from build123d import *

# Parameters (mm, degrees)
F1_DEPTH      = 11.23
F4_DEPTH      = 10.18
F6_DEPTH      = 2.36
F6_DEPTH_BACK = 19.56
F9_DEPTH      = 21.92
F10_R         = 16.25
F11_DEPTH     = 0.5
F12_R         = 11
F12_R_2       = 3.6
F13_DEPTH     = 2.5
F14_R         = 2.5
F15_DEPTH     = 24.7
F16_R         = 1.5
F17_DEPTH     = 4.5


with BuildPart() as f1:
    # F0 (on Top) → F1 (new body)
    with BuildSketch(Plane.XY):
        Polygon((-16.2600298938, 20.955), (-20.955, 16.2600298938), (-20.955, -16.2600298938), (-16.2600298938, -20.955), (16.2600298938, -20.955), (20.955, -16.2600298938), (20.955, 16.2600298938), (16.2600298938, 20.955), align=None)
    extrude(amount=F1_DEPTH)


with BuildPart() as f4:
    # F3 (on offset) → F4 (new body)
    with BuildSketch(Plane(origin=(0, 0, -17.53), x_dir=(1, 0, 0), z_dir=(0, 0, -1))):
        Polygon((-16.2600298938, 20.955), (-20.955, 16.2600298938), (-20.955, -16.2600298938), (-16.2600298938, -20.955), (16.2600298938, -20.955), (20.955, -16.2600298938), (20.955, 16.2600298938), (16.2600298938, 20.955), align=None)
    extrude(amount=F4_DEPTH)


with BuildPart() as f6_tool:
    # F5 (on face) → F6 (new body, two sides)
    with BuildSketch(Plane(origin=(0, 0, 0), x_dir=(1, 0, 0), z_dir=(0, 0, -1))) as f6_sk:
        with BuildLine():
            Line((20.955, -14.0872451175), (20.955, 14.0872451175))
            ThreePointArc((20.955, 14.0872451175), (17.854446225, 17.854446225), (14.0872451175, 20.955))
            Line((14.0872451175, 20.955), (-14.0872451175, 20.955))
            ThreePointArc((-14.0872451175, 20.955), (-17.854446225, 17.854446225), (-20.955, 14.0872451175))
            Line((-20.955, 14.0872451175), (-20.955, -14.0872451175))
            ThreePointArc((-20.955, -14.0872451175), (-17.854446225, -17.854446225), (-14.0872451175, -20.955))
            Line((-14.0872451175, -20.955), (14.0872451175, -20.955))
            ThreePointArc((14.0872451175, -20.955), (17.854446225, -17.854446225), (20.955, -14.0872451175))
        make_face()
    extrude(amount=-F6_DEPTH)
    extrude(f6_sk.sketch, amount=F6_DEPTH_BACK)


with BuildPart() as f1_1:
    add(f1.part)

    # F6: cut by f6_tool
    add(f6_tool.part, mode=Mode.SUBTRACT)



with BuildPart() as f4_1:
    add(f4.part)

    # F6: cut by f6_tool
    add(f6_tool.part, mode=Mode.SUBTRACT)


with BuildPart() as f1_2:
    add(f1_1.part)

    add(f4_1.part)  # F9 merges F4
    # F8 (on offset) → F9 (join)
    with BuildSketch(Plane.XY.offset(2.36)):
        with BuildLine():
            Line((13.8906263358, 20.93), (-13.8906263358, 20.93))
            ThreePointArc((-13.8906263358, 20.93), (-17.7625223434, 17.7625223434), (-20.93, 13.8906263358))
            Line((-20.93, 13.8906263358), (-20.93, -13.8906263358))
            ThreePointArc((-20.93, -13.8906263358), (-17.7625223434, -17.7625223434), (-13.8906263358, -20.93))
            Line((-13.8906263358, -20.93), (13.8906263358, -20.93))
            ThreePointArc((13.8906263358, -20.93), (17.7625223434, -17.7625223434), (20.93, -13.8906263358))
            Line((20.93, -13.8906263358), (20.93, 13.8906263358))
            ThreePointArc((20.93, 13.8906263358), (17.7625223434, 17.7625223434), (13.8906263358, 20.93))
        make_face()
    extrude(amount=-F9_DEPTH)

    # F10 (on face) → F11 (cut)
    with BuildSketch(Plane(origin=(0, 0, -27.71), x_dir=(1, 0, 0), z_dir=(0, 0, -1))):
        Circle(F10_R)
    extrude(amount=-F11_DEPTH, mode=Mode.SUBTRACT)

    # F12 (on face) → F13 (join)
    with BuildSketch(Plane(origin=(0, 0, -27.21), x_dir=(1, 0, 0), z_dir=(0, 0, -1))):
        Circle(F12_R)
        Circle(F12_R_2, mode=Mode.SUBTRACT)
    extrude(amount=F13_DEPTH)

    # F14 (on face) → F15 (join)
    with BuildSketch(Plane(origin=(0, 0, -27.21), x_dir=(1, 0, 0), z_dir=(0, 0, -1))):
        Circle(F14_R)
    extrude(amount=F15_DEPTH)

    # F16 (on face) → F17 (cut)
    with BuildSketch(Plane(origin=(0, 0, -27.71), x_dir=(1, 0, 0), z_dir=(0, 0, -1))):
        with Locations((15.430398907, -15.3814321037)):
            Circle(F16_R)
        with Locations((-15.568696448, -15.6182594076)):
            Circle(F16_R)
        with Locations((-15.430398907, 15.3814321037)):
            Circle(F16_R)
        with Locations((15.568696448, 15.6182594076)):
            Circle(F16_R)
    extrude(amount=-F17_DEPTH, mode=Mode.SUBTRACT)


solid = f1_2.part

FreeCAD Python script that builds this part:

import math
import FreeCAD as App
import Part
import Sketcher

V = App.Vector
Q = App.Units.Quantity

doc = App.newDocument("Part")
body = doc.addObject("PartDesign::Body", "Body")

# Sketch on XY plane
sketch1 = body.newObject("Sketcher::SketchObject", "Sketch")
sketch1.AttachmentSupport = (doc.getObject("XY_Plane"), [""])
sketch1.MapMode = "FlatFace"
sketch1.addGeometry([
    Part.LineSegment(V(-16, 21, 0), V(-21, 16, 0)),  # 0
    Part.LineSegment(V(-21, 16, 0), V(-21, -16, 0)),  # 1
    Part.LineSegment(V(-21, -16, 0), V(-16, -21, 0)),  # 2
    Part.LineSegment(V(-16, -21, 0), V(16, -21, 0)),  # 3
    Part.LineSegment(V(16, -21, 0), V(21, -16, 0)),  # 4
    Part.LineSegment(V(21, -16, 0), V(21, 16, 0)),  # 5
    Part.LineSegment(V(21, 16, 0), V(16, 21, 0)),  # 6
    Part.LineSegment(V(16, 21, 0), V(-16, 21, 0)),  # 7
], False)
sketch1.addConstraint([
    Sketcher.Constraint("Coincident", 0, 2, 1, 1),
    Sketcher.Constraint("Coincident", 1, 2, 2, 1),
    Sketcher.Constraint("Coincident", 2, 2, 3, 1),
    Sketcher.Constraint("Coincident", 3, 2, 4, 1),
    Sketcher.Constraint("Coincident", 4, 2, 5, 1),
    Sketcher.Constraint("Coincident", 5, 2, 6, 1),
    Sketcher.Constraint("Coincident", 6, 2, 7, 1),
    Sketcher.Constraint("Coincident", 7, 2, 0, 1),
    Sketcher.Constraint("Vertical", 1),
    Sketcher.Constraint("Horizontal", 3),
    Sketcher.Constraint("Vertical", 5),
    Sketcher.Constraint("Horizontal", 7),
    Sketcher.Constraint("Symmetric", 0, 2, 4, 2, -1, 1),
    Sketcher.Constraint("Symmetric", 2, 2, 6, 2, -1, 1),
    Sketcher.Constraint("Perpendicular", 0, 2),
    Sketcher.Constraint("Perpendicular", 2, 4),
    Sketcher.Constraint("Perpendicular", 4, 6),
    Sketcher.Constraint("Horizontal", 1, 2, 4, 2),
    Sketcher.Constraint("Vertical", 3, 2, 6, 2),
    Sketcher.Constraint("Equal", 7, 1),
    Sketcher.Constraint("DistanceX", 1, 2, 4, 2, Q("41.91 mm")),
    Sketcher.Constraint("DistanceX", 3, 1, 3, 2, Q("32.52006 mm")),
])
pad1 = body.newObject("PartDesign::Pad", "Pad")
pad1.Profile = sketch1
pad1.Length = 11.23
body2 = doc.addObject("PartDesign::Body", "Body001")

# Sketch on XY plane
sketch2 = body2.newObject("Sketcher::SketchObject", "Sketch001")
sketch2.AttachmentSupport = (doc.getObject("XY_Plane001"), [""])
sketch2.MapMode = "FlatFace"
sketch2.AttachmentOffset = App.Placement(V(0, 0, -17.53), App.Rotation())
sketch2.addGeometry([
    Part.LineSegment(V(-16, -21, 0), V(-21, -16, 0)),  # 0
    Part.LineSegment(V(-21, -16, 0), V(-21, 16, 0)),  # 1
    Part.LineSegment(V(-21, 16, 0), V(-16, 21, 0)),  # 2
    Part.LineSegment(V(-16, 21, 0), V(16, 21, 0)),  # 3
    Part.LineSegment(V(16, 21, 0), V(21, 16, 0)),  # 4
    Part.LineSegment(V(21, 16, 0), V(21, -16, 0)),  # 5
    Part.LineSegment(V(21, -16, 0), V(16, -21, 0)),  # 6
    Part.LineSegment(V(16, -21, 0), V(-16, -21, 0)),  # 7
], False)
sketch2.addConstraint([
    Sketcher.Constraint("Coincident", 0, 2, 1, 1),
    Sketcher.Constraint("Coincident", 1, 2, 2, 1),
    Sketcher.Constraint("Coincident", 2, 2, 3, 1),
    Sketcher.Constraint("Coincident", 3, 2, 4, 1),
    Sketcher.Constraint("Coincident", 4, 2, 5, 1),
    Sketcher.Constraint("Coincident", 5, 2, 6, 1),
    Sketcher.Constraint("Coincident", 6, 2, 7, 1),
    Sketcher.Constraint("Coincident", 7, 2, 0, 1),
    Sketcher.Constraint("Vertical", 1),
    Sketcher.Constraint("Horizontal", 3),
    Sketcher.Constraint("Vertical", 5),
    Sketcher.Constraint("Horizontal", 7),
    Sketcher.Constraint("Symmetric", 0, 2, 4, 2, -1, 1),
    Sketcher.Constraint("Symmetric", 2, 2, 6, 2, -1, 1),
    Sketcher.Constraint("Perpendicular", 0, 2),
    Sketcher.Constraint("Perpendicular", 2, 4),
    Sketcher.Constraint("Perpendicular", 4, 6),
    Sketcher.Constraint("Horizontal", 1, 2, 4, 2),
    Sketcher.Constraint("Vertical", 3, 2, 6, 2),
    Sketcher.Constraint("Equal", 7, 1),
    Sketcher.Constraint("DistanceX", 1, 2, 4, 2, Q("41.91 mm")),
    Sketcher.Constraint("DistanceX", 3, 1, 3, 2, Q("32.52006 mm")),
])
pad2 = body2.newObject("PartDesign::Pad", "Pad001")
pad2.Profile = sketch2
pad2.Length = 10.18
pad2.Reversed = True
body3 = doc.addObject("PartDesign::Body", "Body002")

# Sketch on XY plane
sketch3 = body3.newObject("Sketcher::SketchObject", "Sketch002")
sketch3.AttachmentSupport = (doc.getObject("XY_Plane002"), [""])
sketch3.MapMode = "FlatFace"
sketch3.addGeometry([
    Part.LineSegment(V(21, 14, 0), V(21, -14, 0)),  # 0
    Part.ArcOfCircle(Part.Circle(V(0, 0, 0), V(0, 0, 1), 25), math.radians(-56), math.radians(-34)),  # 1
    Part.LineSegment(V(14, -21, 0), V(-14, -21, 0)),  # 2
    Part.ArcOfCircle(Part.Circle(V(0, 0, 0), V(0, 0, 1), 25), math.radians(-146), math.radians(-124)),  # 3
    Part.LineSegment(V(-21, -14, 0), V(-21, 14, 0)),  # 4
    Part.ArcOfCircle(Part.Circle(V(0, 0, 0), V(0, 0, 1), 25), math.radians(124), math.radians(146)),  # 5
    Part.LineSegment(V(-14, 21, 0), V(14, 21, 0)),  # 6
    Part.ArcOfCircle(Part.Circle(V(0, 0, 0), V(0, 0, 1), 25), math.radians(34), math.radians(56)),  # 7
], False)
sketch3.addConstraint([
    Sketcher.Constraint("Coincident", 0, 2, 1, 2),
    Sketcher.Constraint("Coincident", 1, 1, 2, 1),
    Sketcher.Constraint("Coincident", 2, 2, 3, 2),
    Sketcher.Constraint("Coincident", 3, 1, 4, 1),
    Sketcher.Constraint("Coincident", 4, 2, 5, 2),
    Sketcher.Constraint("Coincident", 5, 1, 6, 1),
    Sketcher.Constraint("Coincident", 6, 2, 7, 2),
    Sketcher.Constraint("Coincident", 7, 1, 0, 1),
    Sketcher.Constraint("Vertical", 0),
    Sketcher.Constraint("Horizontal", 2),
    Sketcher.Constraint("Vertical", 4),
    Sketcher.Constraint("Horizontal", 6),
    Sketcher.Constraint("Coincident", 1, 3, -1, 1),
    Sketcher.Constraint("Coincident", 3, 3, -1, 1),
    Sketcher.Constraint("Coincident", 5, 3, -1, 1),
    Sketcher.Constraint("Coincident", 7, 3, -1, 1),
    Sketcher.Constraint("Equal", 1, 3),
    Sketcher.Constraint("Equal", 3, 5),
    Sketcher.Constraint("Equal", 5, 7),
    Sketcher.Constraint("Horizontal", 0, 2, 3, 1),
    Sketcher.Constraint("Vertical", 2, 2, 5, 1),
    Sketcher.Constraint("Equal", 6, 0),
    Sketcher.Constraint("Radius", 1, Q("25.25 mm")),
    Sketcher.Constraint("DistanceX", -1, 1, 0, 2, Q("20.955 mm")),
])
pad3 = body3.newObject("PartDesign::Pad", "Pad002")
pad3.Profile = sketch3
pad3.Type = "TwoLengths"
pad3.Length = 2.36
pad3.Length2 = 19.56
doc.recompute()

body4 = doc.addObject("PartDesign::Body", "Body003")
body4.BaseFeature = body3
boolean = body.newObject("PartDesign::Boolean", "Boolean")
boolean.Type = "Cut"
boolean.addObjects([body4])
doc.recompute()

boolean2 = body2.newObject("PartDesign::Boolean", "Boolean001")
boolean2.Type = "Cut"
boolean2.addObjects([body3])
body.AllowCompound = True
doc.recompute()

boolean3 = body.newObject("PartDesign::Boolean", "Boolean002")
boolean3.Type = "Fuse"
boolean3.addObjects([body2])

# Sketch on XY plane
sketch4 = body.newObject("Sketcher::SketchObject", "Sketch003")
sketch4.AttachmentSupport = (doc.getObject("XY_Plane"), [""])
sketch4.MapMode = "FlatFace"
sketch4.AttachmentOffset = App.Placement(V(0, 0, 2.36), App.Rotation())
sketch4.addGeometry([
    Part.LineSegment(V(14, 21, 0), V(-14, 21, 0)),  # 0
    Part.ArcOfCircle(Part.Circle(V(0, 0, 0), V(0, 0, 1), 25), math.radians(124), math.radians(146)),  # 1
    Part.LineSegment(V(-21, 14, 0), V(-21, -14, 0)),  # 2
    Part.ArcOfCircle(Part.Circle(V(0, 0, 0), V(0, 0, 1), 25), math.radians(-146), math.radians(-124)),  # 3
    Part.LineSegment(V(-14, -21, 0), V(14, -21, 0)),  # 4
    Part.ArcOfCircle(Part.Circle(V(0, 0, 0), V(0, 0, 1), 25), math.radians(-56), math.radians(-34)),  # 5
    Part.LineSegment(V(21, -14, 0), V(21, 14, 0)),  # 6
    Part.ArcOfCircle(Part.Circle(V(0, 0, 0), V(0, 0, 1), 25), math.radians(34), math.radians(56)),  # 7
], False)
sketch4.addConstraint([
    Sketcher.Constraint("Coincident", 0, 2, 1, 1),
    Sketcher.Constraint("Coincident", 1, 2, 2, 1),
    Sketcher.Constraint("Coincident", 2, 2, 3, 1),
    Sketcher.Constraint("Coincident", 3, 2, 4, 1),
    Sketcher.Constraint("Coincident", 4, 2, 5, 1),
    Sketcher.Constraint("Coincident", 5, 2, 6, 1),
    Sketcher.Constraint("Coincident", 6, 2, 7, 1),
    Sketcher.Constraint("Coincident", 7, 2, 0, 1),
    Sketcher.Constraint("Horizontal", 0),
    Sketcher.Constraint("Vertical", 2),
    Sketcher.Constraint("Horizontal", 4),
    Sketcher.Constraint("Vertical", 6),
    Sketcher.Constraint("Coincident", 1, 3, -1, 1),
    Sketcher.Constraint("Coincident", 3, 3, -1, 1),
    Sketcher.Constraint("Coincident", 5, 3, -1, 1),
    Sketcher.Constraint("Coincident", 7, 3, -1, 1),
    Sketcher.Constraint("Equal", 1, 3),
    Sketcher.Constraint("Equal", 3, 5),
    Sketcher.Constraint("Equal", 5, 7),
    Sketcher.Constraint("Horizontal", 2, 2, 5, 2),
    Sketcher.Constraint("Vertical", 0, 2, 3, 2),
    Sketcher.Constraint("Equal", 4, 2),
    Sketcher.Constraint("Radius", 1, Q("25.12 mm")),
    Sketcher.Constraint("DistanceY", -1, 1, 0, 2, Q("20.93 mm")),
])
pad4 = body.newObject("PartDesign::Pad", "Pad003")
pad4.Profile = sketch4
pad4.Length = 21.92
pad4.Reversed = True

# Sketch on XY plane
sketch5 = body.newObject("Sketcher::SketchObject", "Sketch004")
sketch5.AttachmentSupport = (doc.getObject("XY_Plane"), [""])
sketch5.MapMode = "FlatFace"
sketch5.AttachmentOffset = App.Placement(V(0, 0, -27.71), App.Rotation())
sketch5.addGeometry(Part.Circle(V(0, 0, 0), V(0, 0, 1), 16), False)
sketch5.addConstraint([
    Sketcher.Constraint("Coincident", 0, 3, -1, 1),
    Sketcher.Constraint("Diameter", 0, Q("32.5 mm")),
])
pocket1 = body.newObject("PartDesign::Pocket", "Pocket")
pocket1.Profile = sketch5
pocket1.Length = 0.5
pocket1.Reversed = True

# Sketch on XY plane
sketch6 = body.newObject("Sketcher::SketchObject", "Sketch005")
sketch6.AttachmentSupport = (doc.getObject("XY_Plane"), [""])
sketch6.MapMode = "FlatFace"
sketch6.AttachmentOffset = App.Placement(V(0, 0, -27.21), App.Rotation())
sketch6.addGeometry([
    Part.Circle(V(0, 0, 0), V(0, 0, 1), 11),
    Part.Circle(V(0, 0, 0), V(0, 0, 1), 3.6),
], False)
sketch6.addConstraint([
    Sketcher.Constraint("Coincident", 0, 3, -1, 1),
    Sketcher.Constraint("Coincident", 1, 3, -1, 1),
    Sketcher.Constraint("Diameter", 0, Q("22 mm")),
    Sketcher.Constraint("Diameter", 1, Q("7.2 mm")),
])
pad5 = body.newObject("PartDesign::Pad", "Pad004")
pad5.Profile = sketch6
pad5.Length = 2.5
pad5.Reversed = True

# Sketch on XY plane
sketch7 = body.newObject("Sketcher::SketchObject", "Sketch006")
sketch7.AttachmentSupport = (doc.getObject("XY_Plane"), [""])
sketch7.MapMode = "FlatFace"
sketch7.AttachmentOffset = App.Placement(V(0, 0, -27.21), App.Rotation())
sketch7.addGeometry(Part.Circle(V(0, 0, 0), V(0, 0, 1), 2.5), False)
sketch7.addConstraint([
    Sketcher.Constraint("Coincident", 0, 3, -1, 1),
    Sketcher.Constraint("Diameter", 0, Q("5 mm")),
])
pad6 = body.newObject("PartDesign::Pad", "Pad005")
pad6.Profile = sketch7
pad6.Length = 24.7
pad6.Reversed = True

# Sketch on XY plane
sketch8 = body.newObject("Sketcher::SketchObject", "Sketch007")
sketch8.AttachmentSupport = (doc.getObject("XY_Plane"), [""])
sketch8.MapMode = "FlatFace"
sketch8.AttachmentOffset = App.Placement(V(0, 0, -27.71), App.Rotation())
sketch8.addGeometry([
    Part.Circle(V(15.4, 15.4, 0), V(0, 0, 1), 1.5),
    Part.Circle(V(-15.6, 15.6, 0), V(0, 0, 1), 1.5),
    Part.Circle(V(-15.4, -15.4, 0), V(0, 0, 1), 1.5),
    Part.Circle(V(15.6, -15.6, 0), V(0, 0, 1), 1.5),
], False)
sketch8.addConstraint([
    Sketcher.Constraint("Equal", 0, 1),
    Sketcher.Constraint("Equal", 1, 2),
    Sketcher.Constraint("Equal", 2, 3),
    Sketcher.Constraint("Symmetric", 0, 3, 2, 3, -1, 1),
    Sketcher.Constraint("Symmetric", 1, 3, 3, 3, -1, 1),
    Sketcher.Constraint("Diameter", 0, Q("3 mm")),
    Sketcher.Constraint("DistanceX", -1, 1, 0, 3, Q("15.430399 mm")),
    Sketcher.Constraint("DistanceY", -1, 1, 1, 3, Q("15.618259 mm")),
    Sketcher.Constraint("DistanceY", 2, 3, 1, 3, Q("30.999692 mm")),
    Sketcher.Constraint("DistanceX", 1, 3, -1, 1, Q("15.568696 mm")),
])
pocket2 = body.newObject("PartDesign::Pocket", "Pocket001")
pocket2.Profile = sketch8
pocket2.Length = 4.5
pocket2.Reversed = True

doc.recompute()
